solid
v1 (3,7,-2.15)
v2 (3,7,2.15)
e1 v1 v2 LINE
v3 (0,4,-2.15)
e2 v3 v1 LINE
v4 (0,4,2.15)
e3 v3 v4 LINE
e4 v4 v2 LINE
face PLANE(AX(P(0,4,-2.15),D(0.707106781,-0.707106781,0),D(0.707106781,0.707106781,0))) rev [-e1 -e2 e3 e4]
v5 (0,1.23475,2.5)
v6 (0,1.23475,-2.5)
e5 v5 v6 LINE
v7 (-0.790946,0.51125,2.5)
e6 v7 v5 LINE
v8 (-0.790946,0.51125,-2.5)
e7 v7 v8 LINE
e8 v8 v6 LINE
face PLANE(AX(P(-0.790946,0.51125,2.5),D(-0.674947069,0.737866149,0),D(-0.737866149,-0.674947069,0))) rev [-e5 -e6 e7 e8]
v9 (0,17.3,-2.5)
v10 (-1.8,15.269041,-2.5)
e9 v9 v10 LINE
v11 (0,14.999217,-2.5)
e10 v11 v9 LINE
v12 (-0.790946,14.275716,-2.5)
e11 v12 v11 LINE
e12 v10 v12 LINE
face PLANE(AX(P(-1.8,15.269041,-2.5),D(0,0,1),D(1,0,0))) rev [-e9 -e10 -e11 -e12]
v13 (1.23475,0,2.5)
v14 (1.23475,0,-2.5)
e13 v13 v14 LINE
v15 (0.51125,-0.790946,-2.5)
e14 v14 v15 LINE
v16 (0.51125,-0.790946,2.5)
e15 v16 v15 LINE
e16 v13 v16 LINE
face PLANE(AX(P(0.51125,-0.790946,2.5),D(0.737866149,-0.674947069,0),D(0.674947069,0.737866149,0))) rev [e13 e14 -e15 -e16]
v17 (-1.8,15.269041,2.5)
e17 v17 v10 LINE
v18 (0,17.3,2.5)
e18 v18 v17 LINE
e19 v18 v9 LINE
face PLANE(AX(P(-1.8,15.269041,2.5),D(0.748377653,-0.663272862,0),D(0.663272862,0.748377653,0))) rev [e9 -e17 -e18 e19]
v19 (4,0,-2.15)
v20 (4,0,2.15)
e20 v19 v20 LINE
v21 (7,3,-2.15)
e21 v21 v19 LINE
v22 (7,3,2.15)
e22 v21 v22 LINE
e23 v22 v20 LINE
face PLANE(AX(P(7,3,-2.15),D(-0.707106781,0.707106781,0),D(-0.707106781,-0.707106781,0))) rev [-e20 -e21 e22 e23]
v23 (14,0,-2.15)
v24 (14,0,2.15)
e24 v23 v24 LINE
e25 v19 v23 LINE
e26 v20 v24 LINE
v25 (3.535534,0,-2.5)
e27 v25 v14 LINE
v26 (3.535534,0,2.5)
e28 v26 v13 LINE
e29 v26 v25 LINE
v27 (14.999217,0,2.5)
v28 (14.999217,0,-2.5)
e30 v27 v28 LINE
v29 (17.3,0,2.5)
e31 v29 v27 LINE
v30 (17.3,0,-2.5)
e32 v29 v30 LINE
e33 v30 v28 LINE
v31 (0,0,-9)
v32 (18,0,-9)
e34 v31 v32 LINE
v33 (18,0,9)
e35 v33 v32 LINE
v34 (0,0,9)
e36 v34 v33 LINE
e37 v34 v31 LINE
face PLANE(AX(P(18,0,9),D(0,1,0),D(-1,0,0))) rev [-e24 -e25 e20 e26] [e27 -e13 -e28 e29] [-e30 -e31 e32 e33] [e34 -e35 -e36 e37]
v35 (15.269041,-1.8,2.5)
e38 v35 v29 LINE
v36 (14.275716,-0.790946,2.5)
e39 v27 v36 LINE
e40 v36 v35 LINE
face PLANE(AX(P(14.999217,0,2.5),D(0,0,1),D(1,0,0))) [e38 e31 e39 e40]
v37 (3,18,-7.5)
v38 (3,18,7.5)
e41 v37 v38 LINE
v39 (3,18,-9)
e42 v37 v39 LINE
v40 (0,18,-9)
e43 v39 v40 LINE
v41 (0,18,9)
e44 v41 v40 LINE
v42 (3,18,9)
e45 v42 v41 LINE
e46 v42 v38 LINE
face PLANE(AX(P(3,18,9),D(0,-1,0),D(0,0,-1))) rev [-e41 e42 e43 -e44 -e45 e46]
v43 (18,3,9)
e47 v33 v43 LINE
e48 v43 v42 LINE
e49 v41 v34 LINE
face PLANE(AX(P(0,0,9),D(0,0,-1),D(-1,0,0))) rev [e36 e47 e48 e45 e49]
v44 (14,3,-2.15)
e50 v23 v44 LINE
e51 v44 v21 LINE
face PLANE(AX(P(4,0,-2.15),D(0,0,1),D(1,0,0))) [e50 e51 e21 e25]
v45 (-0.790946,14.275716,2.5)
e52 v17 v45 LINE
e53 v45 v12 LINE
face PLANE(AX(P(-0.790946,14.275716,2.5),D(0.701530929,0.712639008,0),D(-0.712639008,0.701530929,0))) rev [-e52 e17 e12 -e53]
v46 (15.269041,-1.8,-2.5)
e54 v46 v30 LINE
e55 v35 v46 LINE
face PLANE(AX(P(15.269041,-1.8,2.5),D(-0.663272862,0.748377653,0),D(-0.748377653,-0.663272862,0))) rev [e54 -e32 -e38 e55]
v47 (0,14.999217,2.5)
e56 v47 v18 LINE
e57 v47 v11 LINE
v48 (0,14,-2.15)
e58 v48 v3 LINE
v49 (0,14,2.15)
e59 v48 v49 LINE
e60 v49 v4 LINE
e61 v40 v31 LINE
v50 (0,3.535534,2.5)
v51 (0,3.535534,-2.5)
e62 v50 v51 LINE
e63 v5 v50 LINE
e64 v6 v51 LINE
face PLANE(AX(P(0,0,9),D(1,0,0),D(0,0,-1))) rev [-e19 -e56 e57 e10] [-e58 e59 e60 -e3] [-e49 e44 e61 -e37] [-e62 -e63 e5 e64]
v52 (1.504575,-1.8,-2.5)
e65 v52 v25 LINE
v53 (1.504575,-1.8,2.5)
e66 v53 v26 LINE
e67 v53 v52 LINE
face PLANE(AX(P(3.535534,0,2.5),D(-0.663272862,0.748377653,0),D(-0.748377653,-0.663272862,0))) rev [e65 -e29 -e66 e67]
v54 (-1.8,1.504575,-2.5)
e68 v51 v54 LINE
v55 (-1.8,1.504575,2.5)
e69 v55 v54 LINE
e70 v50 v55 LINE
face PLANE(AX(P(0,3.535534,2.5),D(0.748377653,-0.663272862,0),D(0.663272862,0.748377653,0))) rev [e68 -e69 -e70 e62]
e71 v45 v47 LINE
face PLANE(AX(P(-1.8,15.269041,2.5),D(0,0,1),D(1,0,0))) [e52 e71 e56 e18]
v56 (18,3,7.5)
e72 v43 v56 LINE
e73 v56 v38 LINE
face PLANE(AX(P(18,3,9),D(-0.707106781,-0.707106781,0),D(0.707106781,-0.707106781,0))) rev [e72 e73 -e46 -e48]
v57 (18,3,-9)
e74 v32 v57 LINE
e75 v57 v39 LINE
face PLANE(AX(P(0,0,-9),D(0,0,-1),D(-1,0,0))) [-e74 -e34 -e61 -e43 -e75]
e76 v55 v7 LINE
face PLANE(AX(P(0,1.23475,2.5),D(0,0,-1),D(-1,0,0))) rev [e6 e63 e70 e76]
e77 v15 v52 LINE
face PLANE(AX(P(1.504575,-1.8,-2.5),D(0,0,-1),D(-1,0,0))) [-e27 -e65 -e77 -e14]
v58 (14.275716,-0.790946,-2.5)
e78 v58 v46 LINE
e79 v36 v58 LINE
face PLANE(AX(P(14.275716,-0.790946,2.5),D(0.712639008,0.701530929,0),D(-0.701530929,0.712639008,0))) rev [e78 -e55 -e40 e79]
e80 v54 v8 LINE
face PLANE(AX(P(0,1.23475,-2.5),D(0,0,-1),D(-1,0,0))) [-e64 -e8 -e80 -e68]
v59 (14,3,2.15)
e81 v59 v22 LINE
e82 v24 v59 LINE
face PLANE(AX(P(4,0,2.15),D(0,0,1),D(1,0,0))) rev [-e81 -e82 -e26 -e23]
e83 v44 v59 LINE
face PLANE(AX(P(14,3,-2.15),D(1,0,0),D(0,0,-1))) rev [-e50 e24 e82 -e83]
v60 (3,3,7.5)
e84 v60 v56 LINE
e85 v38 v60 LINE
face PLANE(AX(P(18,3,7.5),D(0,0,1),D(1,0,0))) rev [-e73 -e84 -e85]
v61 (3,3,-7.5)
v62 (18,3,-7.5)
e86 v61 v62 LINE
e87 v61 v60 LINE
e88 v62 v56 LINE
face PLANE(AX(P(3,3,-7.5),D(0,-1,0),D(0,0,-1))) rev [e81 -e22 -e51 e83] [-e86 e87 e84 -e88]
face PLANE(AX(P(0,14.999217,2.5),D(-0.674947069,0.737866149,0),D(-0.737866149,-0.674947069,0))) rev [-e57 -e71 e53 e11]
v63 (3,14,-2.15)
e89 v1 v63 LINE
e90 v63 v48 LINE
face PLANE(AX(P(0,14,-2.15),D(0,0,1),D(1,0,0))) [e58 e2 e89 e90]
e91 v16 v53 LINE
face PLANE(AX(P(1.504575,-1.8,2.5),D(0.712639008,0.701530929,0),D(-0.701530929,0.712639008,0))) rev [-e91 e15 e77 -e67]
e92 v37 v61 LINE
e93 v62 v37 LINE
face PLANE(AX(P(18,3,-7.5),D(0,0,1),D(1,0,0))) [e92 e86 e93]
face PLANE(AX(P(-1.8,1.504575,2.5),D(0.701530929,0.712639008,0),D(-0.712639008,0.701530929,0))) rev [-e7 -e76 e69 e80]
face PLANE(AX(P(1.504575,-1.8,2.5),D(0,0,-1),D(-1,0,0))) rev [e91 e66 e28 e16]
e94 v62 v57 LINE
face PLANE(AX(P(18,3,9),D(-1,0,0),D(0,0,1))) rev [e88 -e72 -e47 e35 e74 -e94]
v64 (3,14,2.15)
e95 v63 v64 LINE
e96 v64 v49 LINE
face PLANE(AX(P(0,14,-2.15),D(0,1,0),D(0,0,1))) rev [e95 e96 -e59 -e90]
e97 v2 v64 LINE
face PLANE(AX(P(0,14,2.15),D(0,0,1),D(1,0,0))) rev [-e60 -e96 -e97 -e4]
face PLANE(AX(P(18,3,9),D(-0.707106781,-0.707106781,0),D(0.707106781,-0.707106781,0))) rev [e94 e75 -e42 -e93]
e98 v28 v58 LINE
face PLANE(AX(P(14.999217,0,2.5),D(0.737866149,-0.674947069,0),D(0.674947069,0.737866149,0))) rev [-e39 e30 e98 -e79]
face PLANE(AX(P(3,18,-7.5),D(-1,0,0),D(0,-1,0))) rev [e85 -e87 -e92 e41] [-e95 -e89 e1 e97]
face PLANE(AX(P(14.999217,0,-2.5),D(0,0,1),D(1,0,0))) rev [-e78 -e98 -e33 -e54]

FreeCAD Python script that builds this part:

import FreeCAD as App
import Part
import Sketcher

V = App.Vector
Q = App.Units.Quantity


def add_polygon(sketch, points):
    """Adds a closed chain of lines whose ends are joined by coincident constraints."""
    first, n = sketch.GeometryCount, len(points)
    for a, b in zip(points, points[1:] + points[:1]):
        sketch.addGeometry(Part.LineSegment(App.Vector(*a, 0), App.Vector(*b, 0)), False)
    for i in range(n):
        sketch.addConstraint(Sketcher.Constraint("Coincident", first + i, 2, first + (i + 1) % n, 1))

doc = App.newDocument("Part")
params = doc.addObject("Spreadsheet::Sheet", "Params")
for row, (alias, value) in enumerate([
    ("sketch1_width", "18 mm"),
    ("sketch1_width2", "3 mm"),
    ("pad1_length", "18 mm"),
    ("sketch2_width", "15 mm"),
    ("pocket1_length", "15 mm"),
    ("sketch3_width", "3 mm"),
    ("sketch3_width2", "7 mm"),
    ("pocket2_length", "4.3 mm"),
    ("pad2_length", "5 mm"),
], start=1):
    params.set(f"A{row}", alias)
    params.set(f"B{row}", "=" + value)
    params.setAlias(f"B{row}", alias)

body = doc.addObject("PartDesign::Body", "Body")

# Sketch on XY plane
sketch1 = body.newObject("Sketcher::SketchObject", "Sketch")
sketch1.AttachmentSupport = (doc.getObject("XY_Plane"), [""])
sketch1.MapMode = "FlatFace"
add_polygon(sketch1, [(0, 18), (0, 0), (18, 0), (18, 3), (3, 18)])  # lines 0-4
sketch1.addConstraint([
    Sketcher.Constraint("Vertical", 0),
    Sketcher.Constraint("Horizontal", 1),
    Sketcher.Constraint("Vertical", 2),
    Sketcher.Constraint("Horizontal", 4),
    Sketcher.Constraint("Coincident", 0, 2, -1, 1),
    Sketcher.Constraint("Equal", 1, 0),
    Sketcher.Constraint("Equal", 4, 2),
    Sketcher.Constraint("DistanceX", 1, 1, 1, 2, Q("18 mm")),
    Sketcher.Constraint("DistanceX", 4, 2, 4, 1, Q("3 mm")),
])
sketch1.setExpression("Constraints[12]", "Params.sketch1_width")
sketch1.setExpression("Constraints[13]", "Params.sketch1_width2")
pad1 = body.newObject("PartDesign::Pad", "Pad")
pad1.Profile = sketch1
pad1.setExpression("Length", "Params.pad1_length")
pad1.Midplane = True

# Sketch on XY plane
sketch2 = body.newObject("Sketcher::SketchObject", "Sketch001")
sketch2.AttachmentSupport = (doc.getObject("XY_Plane"), [""])
sketch2.MapMode = "FlatFace"
add_polygon(sketch2, [(3, 18), (3, 3), (18, 3)])  # lines 0-2
sketch2.addConstraint([
    Sketcher.Constraint("Vertical", 0),
    Sketcher.Constraint("Horizontal", 1),
    Sketcher.Constraint("Equal", 1, 0),
    Sketcher.Constraint("DistanceX", 1, 1, 1, 2, Q("15 mm")),
    Sketcher.Constraint("DistanceX", -1, 1, 0, 2, Q("3 mm")),
    Sketcher.Constraint("DistanceY", -1, 1, 0, 2, Q("3 mm")),
])
sketch2.setExpression("Constraints[6]", "Params.sketch2_width")
pocket1 = body.newObject("PartDesign::Pocket", "Pocket")
pocket1.Profile = sketch2
pocket1.setExpression("Length", "Params.pocket1_length")
pocket1.Midplane = True

# Sketch on XY plane
sketch3 = body.newObject("Sketcher::SketchObject", "Sketch002")
sketch3.AttachmentSupport = (doc.getObject("XY_Plane"), [""])
sketch3.MapMode = "FlatFace"
add_polygon(sketch3, [(3, 14), (0, 14), (0, 4), (3, 7)])  # lines 0-3
add_polygon(sketch3, [(14, 3), (7, 3), (4, 0), (14, 0)])  # lines 4-7
sketch3.addConstraint([
    Sketcher.Constraint("Horizontal", 0),
    Sketcher.Constraint("Vertical", 1),
    Sketcher.Constraint("Vertical", 3),
    Sketcher.Constraint("Horizontal", 4),
    Sketcher.Constraint("Horizontal", 6),
    Sketcher.Constraint("Vertical", 7),
    Sketcher.Constraint("PointOnObject", 0, 2, -2),
    Sketcher.Constraint("PointOnObject", 5, 2, -1),
    Sketcher.Constraint("Parallel", 2, 5),
    Sketcher.Constraint("Equal", 6, 1),
    Sketcher.Constraint("Equal", 4, 3),
    Sketcher.Constraint("Equal", 0, 7),
    Sketcher.Constraint("DistanceX", 0, 2, 0, 1, Q("3 mm")),
    Sketcher.Constraint("DistanceX", 4, 2, 4, 1, Q("7 mm")),
    Sketcher.Constraint("DistanceY", -1, 1, 0, 2, Q("14 mm")),
    Sketcher.Constraint("DistanceX", -1, 1, 4, 2, Q("7 mm")),
])
sketch3.setExpression("Constraints[20]", "Params.sketch3_width")
sketch3.setExpression("Constraints[21]", "Params.sketch3_width2")
pocket2 = body.newObject("PartDesign::Pocket", "Pocket001")
pocket2.Profile = sketch3
pocket2.setExpression("Length", "Params.pocket2_length")
pocket2.Midplane = True

# Sketch on XY plane
sketch4 = body.newObject("Sketcher::SketchObject", "Sketch003")
sketch4.AttachmentSupport = (doc.getObject("XY_Plane"), [""])
sketch4.MapMode = "FlatFace"
add_polygon(sketch4, [(0.5, -0.8), (1.5, -1.8), (3.5, 0), (1.2, 0)])  # lines 0-3
add_polygon(sketch4, [(0, 3.5), (-1.8, 1.5), (-0.8, 0.5), (0, 1.2)])  # lines 4-7
add_polygon(sketch4, [(0, 15), (0, 17.3), (-1.8, 15.3), (-0.8, 14.3)])  # lines 8-11
add_polygon(sketch4, [(15, 0), (14.3, -0.8), (15.3, -1.8), (17.3, 0)])  # lines 12-15
sketch4.addConstraint([
    Sketcher.Constraint("Horizontal", 2),
    Sketcher.Constraint("Vertical", 7),
    Sketcher.Constraint("Vertical", 8),
    Sketcher.Constraint("Horizontal", 15),
    Sketcher.Constraint("PointOnObject", 1, 2, -1),
    Sketcher.Constraint("PointOnObject", 6, 2, -2),
    Sketcher.Constraint("PointOnObject", 8, 2, -2),
    Sketcher.Constraint("PointOnObject", 14, 2, -1),
    Sketcher.Constraint("Parallel", 4, 9),
    Sketcher.Constraint("Parallel", 5, 10),
    Sketcher.Constraint("Parallel", 6, 11),
    Sketcher.Constraint("Parallel", 3, 12),
    Sketcher.Constraint("Parallel", 0, 13),
    Sketcher.Constraint("Parallel", 1, 14),
    Sketcher.Constraint("Horizontal", 3, 2, 12, 2),
    Sketcher.Constraint("Horizontal", 0, 2, 13, 2),
    Sketcher.Constraint("Vertical", 4, 2, 9, 2),
    Sketcher.Constraint("Vertical", 5, 2, 10, 2),
    Sketcher.Constraint("Equal", 15, 7),
    Sketcher.Constraint("Equal", 1, 4),
    Sketcher.Constraint("Equal", 0, 5),
    Sketcher.Constraint("Equal", 3, 6),
    Sketcher.Constraint("DistanceY", 0, 2, -1, 1, Q("1.8 mm")),
    Sketcher.Constraint("DistanceX", 4, 2, -1, 1, Q("1.8 mm")),
    Sketcher.Constraint("DistanceY", -1, 1, 8, 2, Q("17.3 mm")),
    Sketcher.Constraint("DistanceX", -1, 1, 14, 2, Q("17.3 mm")),
    Sketcher.Constraint("DistanceX", 3, 2, 2, 2, Q("0.723501 mm")),
    Sketcher.Constraint("Distance", 0, Q("1.41594 mm")),
    Sketcher.Constraint("DistanceX", 2, 2, 2, 1, Q("2.300783 mm")),
    Sketcher.Constraint("DistanceX", -1, 1, 2, 2, Q("1.23475 mm")),
    Sketcher.Constraint("DistanceY", -1, 1, 5, 2, Q("0.51125 mm")),
    Sketcher.Constraint("DistanceY", -1, 1, 9, 2, Q("15.269041 mm")),
])
pad2 = body.newObject("PartDesign::Pad", "Pad001")
pad2.Profile = sketch4
pad2.setExpression("Length", "Params.pad2_length")
pad2.Midplane = True

doc.recompute()
